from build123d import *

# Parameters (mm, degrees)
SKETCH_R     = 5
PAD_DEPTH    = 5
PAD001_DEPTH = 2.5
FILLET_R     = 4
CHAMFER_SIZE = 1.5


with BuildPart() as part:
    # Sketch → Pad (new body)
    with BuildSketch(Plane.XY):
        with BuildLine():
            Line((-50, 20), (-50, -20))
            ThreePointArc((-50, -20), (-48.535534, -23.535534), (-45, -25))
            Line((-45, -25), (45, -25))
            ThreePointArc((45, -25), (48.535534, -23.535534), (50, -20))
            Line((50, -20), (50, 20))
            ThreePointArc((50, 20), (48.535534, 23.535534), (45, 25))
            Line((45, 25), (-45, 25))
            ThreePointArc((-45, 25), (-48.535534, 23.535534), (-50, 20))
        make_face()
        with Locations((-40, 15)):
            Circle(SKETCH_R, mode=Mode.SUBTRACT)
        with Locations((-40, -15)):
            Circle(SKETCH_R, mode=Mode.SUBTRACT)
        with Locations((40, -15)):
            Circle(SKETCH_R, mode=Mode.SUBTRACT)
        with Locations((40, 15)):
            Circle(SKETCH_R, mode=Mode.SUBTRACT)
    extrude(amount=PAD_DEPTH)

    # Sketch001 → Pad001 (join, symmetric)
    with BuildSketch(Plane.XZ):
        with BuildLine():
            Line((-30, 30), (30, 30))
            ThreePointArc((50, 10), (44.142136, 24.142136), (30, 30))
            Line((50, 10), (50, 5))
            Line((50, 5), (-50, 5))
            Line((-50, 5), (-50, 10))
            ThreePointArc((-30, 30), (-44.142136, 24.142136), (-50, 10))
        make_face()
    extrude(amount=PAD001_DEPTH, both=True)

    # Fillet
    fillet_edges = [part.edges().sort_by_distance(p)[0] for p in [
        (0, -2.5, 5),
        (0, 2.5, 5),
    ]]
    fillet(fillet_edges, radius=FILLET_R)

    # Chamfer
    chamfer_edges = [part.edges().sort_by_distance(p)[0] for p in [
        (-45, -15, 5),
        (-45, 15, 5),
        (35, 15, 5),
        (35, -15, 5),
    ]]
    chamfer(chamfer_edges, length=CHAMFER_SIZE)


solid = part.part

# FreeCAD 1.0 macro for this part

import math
import FreeCAD as App
import Part
import Sketcher
from FreeCAD import Vector


def edges_at(feature, points):
    """Names of the edges that pass closest to the given points."""
    edges = feature.Shape.Edges
    near = lambda p: min(range(len(edges)), key=lambda i: edges[i].distToShape(Part.Vertex(*p))[0])
    return sorted({f"Edge{near(p) + 1}" for p in points})

doc = App.newDocument("Part")
body = doc.addObject("PartDesign::Body", "Body")

# Sketch on XY plane
sketch1 = body.newObject("Sketcher::SketchObject", "Sketch")
sketch1.AttachmentSupport = (doc.getObject("XY_Plane"), [""])
sketch1.MapMode = "FlatFace"
sketch1.addGeometry(Part.LineSegment(Vector(-50, 20, 0), Vector(-50, -20, 0)), False)
sketch1.addGeometry(Part.ArcOfCircle(Part.Circle(Vector(-45, -20, 0), Vector(0, 0, 1), 5), math.radians(180), math.radians(270)), False)
sketch1.addGeometry(Part.LineSegment(Vector(-45, -25, 0), Vector(45, -25, 0)), False)
sketch1.addGeometry(Part.ArcOfCircle(Part.Circle(Vector(45, -20, 0), Vector(0, 0, 1), 5), math.radians(-90), math.radians(0)), False)
sketch1.addGeometry(Part.LineSegment(Vector(50, -20, 0), Vector(50, 20, 0)), False)
sketch1.addGeometry(Part.ArcOfCircle(Part.Circle(Vector(45, 20, 0), Vector(0, 0, 1), 5), math.radians(0), math.radians(90)), False)
sketch1.addGeometry(Part.LineSegment(Vector(45, 25, 0), Vector(-45, 25, 0)), False)
sketch1.addGeometry(Part.ArcOfCircle(Part.Circle(Vector(-45, 20, 0), Vector(0, 0, 1), 5), math.radians(90), math.radians(180)), False)
sketch1.addGeometry(Part.Circle(Vector(-40, -15, 0), Vector(0, 0, 1), 5), False)
sketch1.addGeometry(Part.Circle(Vector(40, -15, 0), Vector(0, 0, 1), 5), False)
sketch1.addGeometry(Part.Circle(Vector(-40, 15, 0), Vector(0, 0, 1), 5), False)
sketch1.addGeometry(Part.Circle(Vector(40, 15, 0), Vector(0, 0, 1), 5), False)
sketch1.addConstraint(Sketcher.Constraint("Tangent", 0, 2, 1, 1))
sketch1.addConstraint(Sketcher.Constraint("Tangent", 1, 2, 2, 1))
sketch1.addConstraint(Sketcher.Constraint("Tangent", 2, 2, 3, 1))
sketch1.addConstraint(Sketcher.Constraint("Tangent", 3, 2, 4, 1))
sketch1.addConstraint(Sketcher.Constraint("Tangent", 4, 2, 5, 1))
sketch1.addConstraint(Sketcher.Constraint("Tangent", 5, 2, 6, 1))
sketch1.addConstraint(Sketcher.Constraint("Tangent", 6, 2, 7, 1))
sketch1.addConstraint(Sketcher.Constraint("Tangent", 7, 2, 0, 1))
sketch1.addConstraint(Sketcher.Constraint("Vertical", 0))
sketch1.addConstraint(Sketcher.Constraint("Horizontal", 2))
sketch1.addConstraint(Sketcher.Constraint("Vertical", 4))
sketch1.addConstraint(Sketcher.Constraint("Horizontal", 6))
sketch1.addConstraint(Sketcher.Constraint("Equal", 1, 3))
sketch1.addConstraint(Sketcher.Constraint("Equal", 3, 5))
sketch1.addConstraint(Sketcher.Constraint("Equal", 5, 7))
sketch1.addConstraint(Sketcher.Constraint("Equal", 7, 8))
sketch1.addConstraint(Sketcher.Constraint("Equal", 8, 9))
sketch1.addConstraint(Sketcher.Constraint("Equal", 9, 10))
sketch1.addConstraint(Sketcher.Constraint("Equal", 10, 11))
sketch1.addConstraint(Sketcher.Constraint("Symmetric", 1, 3, 5, 3, -1, 1))
sketch1.addConstraint(Sketcher.Constraint("Symmetric", 9, 3, 10, 3, -1, 1))
sketch1.addConstraint(Sketcher.Constraint("Symmetric", 8, 3, 11, 3, -1, 1))
sketch1.addConstraint(Sketcher.Constraint("Symmetric", 8, 3, 9, 3, -2))
sketch1.addConstraint(Sketcher.Constraint("Diameter", 8, 10.0))
sketch1.addConstraint(Sketcher.Constraint("DistanceX", 2, 1, 2, 2, 90.0))
sketch1.addConstraint(Sketcher.Constraint("DistanceY", 0, 2, 0, 1, 40.0))
sketch1.addConstraint(Sketcher.Constraint("DistanceX", 8, 3, -1, 1, 40.0))
sketch1.addConstraint(Sketcher.Constraint("DistanceY", 8, 3, -1, 1, 15.0))
pad1 = body.newObject("PartDesign::Pad", "Pad")
pad1.Profile = sketch1
pad1.Length = 5

# Sketch on XZ plane
sketch2 = body.newObject("Sketcher::SketchObject", "Sketch001")
sketch2.AttachmentSupport = (doc.getObject("XZ_Plane"), [""])
sketch2.MapMode = "FlatFace"
sketch2.addGeometry(Part.LineSegment(Vector(30, 30, 0), Vector(-30, 30, 0)), False)
sketch2.addGeometry(Part.ArcOfCircle(Part.Circle(Vector(-30, 10, 0), Vector(0, 0, 1), 20), math.radians(90), math.radians(180)), False)
sketch2.addGeometry(Part.LineSegment(Vector(-50, 10, 0), Vector(-50, 5, 0)), False)
sketch2.addGeometry(Part.LineSegment(Vector(-50, 5, 0), Vector(50, 5, 0)), False)
sketch2.addGeometry(Part.LineSegment(Vector(50, 5, 0), Vector(50, 10, 0)), False)
sketch2.addGeometry(Part.ArcOfCircle(Part.Circle(Vector(30, 10, 0), Vector(0, 0, 1), 20), math.radians(0), math.radians(90)), False)
sketch2.addConstraint(Sketcher.Constraint("Tangent", 0, 2, 1, 1))
sketch2.addConstraint(Sketcher.Constraint("Tangent", 1, 2, 2, 1))
sketch2.addConstraint(Sketcher.Constraint("Coincident", 2, 2, 3, 1))
sketch2.addConstraint(Sketcher.Constraint("Coincident", 3, 2, 4, 1))
sketch2.addConstraint(Sketcher.Constraint("Tangent", 4, 2, 5, 1))
sketch2.addConstraint(Sketcher.Constraint("Tangent", 5, 2, 0, 1))
sketch2.addConstraint(Sketcher.Constraint("Horizontal", 0))
sketch2.addConstraint(Sketcher.Constraint("Vertical", 2))
sketch2.addConstraint(Sketcher.Constraint("Horizontal", 3))
sketch2.addConstraint(Sketcher.Constraint("Vertical", 4))
sketch2.addConstraint(Sketcher.Constraint("Equal", 1, 5))
sketch2.addConstraint(Sketcher.Constraint("Radius", 1, 19.999999))
sketch2.addConstraint(Sketcher.Constraint("DistanceX", 0, 2, 0, 1, 60.0))
sketch2.addConstraint(Sketcher.Constraint("DistanceY", 2, 2, 2, 1, 5.0))
sketch2.addConstraint(Sketcher.Constraint("DistanceX", 1, 3, -1, 1, 30.000001))
sketch2.addConstraint(Sketcher.Constraint("DistanceY", -1, 1, 1, 3, 10.000001))
pad2 = body.newObject("PartDesign::Pad", "Pad001")
pad2.Profile = sketch2
pad2.Length = 5
pad2.Midplane = True
doc.recompute()

fillet = body.newObject("PartDesign::Fillet", "Fillet")
fillet.Base = (pad2, edges_at(pad2, [(0, -2.5, 5), (0, 2.5, 5)]))
fillet.Radius = 4
doc.recompute()

chamfer = body.newObject("PartDesign::Chamfer", "Chamfer")
chamfer.Base = (fillet, edges_at(fillet, [
    (-45, -15, 5),
    (-45, 15, 5),
    (35, 15, 5),
    (35, -15, 5),
]))
chamfer.Size = 1.5

doc.recompute()
